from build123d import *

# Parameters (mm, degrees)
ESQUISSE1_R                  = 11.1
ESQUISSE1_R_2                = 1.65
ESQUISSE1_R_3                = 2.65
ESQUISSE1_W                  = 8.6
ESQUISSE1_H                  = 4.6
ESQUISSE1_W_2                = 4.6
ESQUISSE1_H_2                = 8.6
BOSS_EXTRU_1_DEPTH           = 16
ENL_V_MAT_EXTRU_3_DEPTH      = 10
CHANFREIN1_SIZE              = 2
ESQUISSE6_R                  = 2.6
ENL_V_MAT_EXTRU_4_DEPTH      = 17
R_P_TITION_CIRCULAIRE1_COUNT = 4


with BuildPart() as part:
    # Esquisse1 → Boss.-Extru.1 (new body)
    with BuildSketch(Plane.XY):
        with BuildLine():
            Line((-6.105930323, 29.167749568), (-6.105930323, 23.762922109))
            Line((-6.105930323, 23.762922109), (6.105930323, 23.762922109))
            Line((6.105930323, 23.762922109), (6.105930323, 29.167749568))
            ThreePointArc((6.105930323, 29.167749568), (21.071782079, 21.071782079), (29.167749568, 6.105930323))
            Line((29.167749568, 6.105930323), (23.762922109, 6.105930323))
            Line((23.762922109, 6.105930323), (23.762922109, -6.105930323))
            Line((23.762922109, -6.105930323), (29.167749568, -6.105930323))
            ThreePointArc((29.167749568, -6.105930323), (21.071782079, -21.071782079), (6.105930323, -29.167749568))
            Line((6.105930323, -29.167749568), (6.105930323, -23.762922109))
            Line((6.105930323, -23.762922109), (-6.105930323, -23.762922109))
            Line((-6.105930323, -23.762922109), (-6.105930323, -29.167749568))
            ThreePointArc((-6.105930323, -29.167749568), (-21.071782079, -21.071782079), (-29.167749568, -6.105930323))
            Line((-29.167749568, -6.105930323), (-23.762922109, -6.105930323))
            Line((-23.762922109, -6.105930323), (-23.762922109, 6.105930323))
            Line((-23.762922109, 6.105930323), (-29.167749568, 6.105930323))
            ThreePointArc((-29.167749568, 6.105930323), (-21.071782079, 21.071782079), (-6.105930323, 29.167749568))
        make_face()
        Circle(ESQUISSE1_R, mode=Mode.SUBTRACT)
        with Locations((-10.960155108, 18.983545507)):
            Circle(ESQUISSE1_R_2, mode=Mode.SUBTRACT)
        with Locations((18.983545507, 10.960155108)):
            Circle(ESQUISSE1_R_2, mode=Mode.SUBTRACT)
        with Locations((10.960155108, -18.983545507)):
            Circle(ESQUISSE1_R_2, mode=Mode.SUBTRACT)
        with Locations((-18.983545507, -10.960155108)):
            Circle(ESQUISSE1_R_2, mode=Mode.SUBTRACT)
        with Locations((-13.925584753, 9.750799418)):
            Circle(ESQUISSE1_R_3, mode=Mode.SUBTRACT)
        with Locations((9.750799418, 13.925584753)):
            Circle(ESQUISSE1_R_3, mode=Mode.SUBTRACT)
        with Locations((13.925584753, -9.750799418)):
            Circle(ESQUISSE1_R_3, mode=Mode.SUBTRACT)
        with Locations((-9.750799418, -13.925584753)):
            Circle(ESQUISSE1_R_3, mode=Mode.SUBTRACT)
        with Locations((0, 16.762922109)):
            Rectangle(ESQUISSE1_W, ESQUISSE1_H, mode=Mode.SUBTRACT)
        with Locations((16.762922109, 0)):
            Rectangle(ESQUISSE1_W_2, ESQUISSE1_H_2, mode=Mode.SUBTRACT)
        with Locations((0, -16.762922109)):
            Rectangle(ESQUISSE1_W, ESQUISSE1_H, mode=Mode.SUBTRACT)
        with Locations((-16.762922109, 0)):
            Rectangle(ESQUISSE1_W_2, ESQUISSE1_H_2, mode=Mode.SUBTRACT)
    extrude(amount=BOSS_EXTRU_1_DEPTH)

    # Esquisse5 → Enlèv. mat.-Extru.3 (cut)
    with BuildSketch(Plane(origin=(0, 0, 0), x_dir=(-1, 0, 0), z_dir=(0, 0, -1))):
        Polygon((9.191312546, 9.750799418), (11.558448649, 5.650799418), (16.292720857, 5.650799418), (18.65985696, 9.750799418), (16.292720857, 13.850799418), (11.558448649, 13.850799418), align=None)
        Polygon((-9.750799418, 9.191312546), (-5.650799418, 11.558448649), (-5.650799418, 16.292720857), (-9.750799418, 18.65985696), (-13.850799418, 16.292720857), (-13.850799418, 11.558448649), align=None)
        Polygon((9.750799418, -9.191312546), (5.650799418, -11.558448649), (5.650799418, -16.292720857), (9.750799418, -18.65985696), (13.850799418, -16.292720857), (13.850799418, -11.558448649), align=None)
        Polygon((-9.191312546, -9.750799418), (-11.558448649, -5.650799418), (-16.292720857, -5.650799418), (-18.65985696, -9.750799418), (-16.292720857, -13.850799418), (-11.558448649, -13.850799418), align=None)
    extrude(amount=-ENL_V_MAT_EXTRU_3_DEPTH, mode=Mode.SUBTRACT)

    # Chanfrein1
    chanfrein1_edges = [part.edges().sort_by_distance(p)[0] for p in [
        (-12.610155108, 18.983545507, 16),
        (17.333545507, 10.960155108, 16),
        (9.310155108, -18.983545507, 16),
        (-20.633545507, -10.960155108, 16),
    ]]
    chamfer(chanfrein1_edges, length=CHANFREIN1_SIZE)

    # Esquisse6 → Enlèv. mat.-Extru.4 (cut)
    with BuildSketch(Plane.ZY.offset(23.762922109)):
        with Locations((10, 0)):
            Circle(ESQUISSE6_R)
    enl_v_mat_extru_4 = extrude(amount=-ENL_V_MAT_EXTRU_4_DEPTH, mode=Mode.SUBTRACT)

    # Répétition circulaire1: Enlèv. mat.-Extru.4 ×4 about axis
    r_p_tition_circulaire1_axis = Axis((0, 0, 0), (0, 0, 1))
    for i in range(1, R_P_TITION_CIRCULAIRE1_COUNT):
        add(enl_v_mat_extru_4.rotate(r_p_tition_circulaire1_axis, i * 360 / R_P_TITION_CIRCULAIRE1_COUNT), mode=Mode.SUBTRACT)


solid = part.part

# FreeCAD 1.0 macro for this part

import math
import FreeCAD as App
import Part
import Sketcher
Q = App.Units.Quantity


def edges_at(feature, points):
    """Names of the edges that pass closest to the given points."""
    edges = feature.Shape.Edges
    near = lambda p: min(range(len(edges)), key=lambda i: edges[i].distToShape(Part.Vertex(*p))[0])
    return sorted({f"Edge{near(p) + 1}" for p in points})


def add_polygon(sketch, points):
    """Adds a closed chain of lines whose ends are joined by coincident constraints."""
    first, n = sketch.GeometryCount, len(points)
    for a, b in zip(points, points[1:] + points[:1]):
        sketch.addGeometry(Part.LineSegment(App.Vector(*a, 0), App.Vector(*b, 0)), False)
    for i in range(n):
        sketch.addConstraint(Sketcher.Constraint("Coincident", first + i, 2, first + (i + 1) % n, 1))

doc = App.newDocument("Part")
body = doc.addObject("PartDesign::Body", "Body")

# Sketch on XY plane
sketch1 = doc.addObject("Sketcher::SketchObject", "Sketch")
body.addObject(sketch1)
sketch1.AttachmentSupport = (doc.XY_Plane, [""])
sketch1.MapMode = "FlatFace"
sketch1.addGeometry(Part.LineSegment(App.Vector(-6.1, 23.8, 0), App.Vector(-6.1, 29.2, 0)), False)  # 0
sketch1.addGeometry(Part.ArcOfCircle(Part.Circle(App.Vector(0, 0, 0), App.Vector(0, 0, 1), 29.8), math.radians(102), math.radians(168)), False)  # 1
sketch1.addGeometry(Part.LineSegment(App.Vector(-29.2, 6.1, 0), App.Vector(-23.8, 6.1, 0)), False)  # 2
sketch1.addGeometry(Part.LineSegment(App.Vector(-23.8, 6.1, 0), App.Vector(-23.8, -6.1, 0)), False)  # 3
sketch1.addGeometry(Part.LineSegment(App.Vector(-23.8, -6.1, 0), App.Vector(-29.2, -6.1, 0)), False)  # 4
sketch1.addGeometry(Part.ArcOfCircle(Part.Circle(App.Vector(0, 0, 0), App.Vector(0, 0, 1), 29.8), math.radians(-168), math.radians(-102)), False)  # 5
sketch1.addGeometry(Part.LineSegment(App.Vector(-6.1, -29.2, 0), App.Vector(-6.1, -23.8, 0)), False)  # 6
sketch1.addGeometry(Part.LineSegment(App.Vector(-6.1, -23.8, 0), App.Vector(6.1, -23.8, 0)), False)  # 7
sketch1.addGeometry(Part.LineSegment(App.Vector(6.1, -23.8, 0), App.Vector(6.1, -29.2, 0)), False)  # 8
sketch1.addGeometry(Part.ArcOfCircle(Part.Circle(App.Vector(0, 0, 0), App.Vector(0, 0, 1), 29.8), math.radians(-78), math.radians(-12)), False)  # 9
sketch1.addGeometry(Part.LineSegment(App.Vector(29.2, -6.1, 0), App.Vector(23.8, -6.1, 0)), False)  # 10
sketch1.addGeometry(Part.LineSegment(App.Vector(23.8, -6.1, 0), App.Vector(23.8, 6.1, 0)), False)  # 11
sketch1.addGeometry(Part.LineSegment(App.Vector(23.8, 6.1, 0), App.Vector(29.2, 6.1, 0)), False)  # 12
sketch1.addGeometry(Part.ArcOfCircle(Part.Circle(App.Vector(0, 0, 0), App.Vector(0, 0, 1), 29.8), math.radians(12), math.radians(78)), False)  # 13
sketch1.addGeometry(Part.LineSegment(App.Vector(6.1, 29.2, 0), App.Vector(6.1, 23.8, 0)), False)  # 14
sketch1.addGeometry(Part.LineSegment(App.Vector(6.1, 23.8, 0), App.Vector(-6.1, 23.8, 0)), False)  # 15
sketch1.addGeometry(Part.Circle(App.Vector(11, -19, 0), App.Vector(0, 0, 1), 1.6), False)  # 16
sketch1.addGeometry(Part.Circle(App.Vector(13.9, -9.8, 0), App.Vector(0, 0, 1), 2.6), False)  # 17
add_polygon(sketch1, [(-4.3, -19.1), (-4.3, -14.5), (4.3, -14.5), (4.3, -19.1)])  # lines 18-21
sketch1.addGeometry(Part.Circle(App.Vector(-9.8, -13.9, 0), App.Vector(0, 0, 1), 2.6), False)  # 22
sketch1.addGeometry(Part.Circle(App.Vector(-19, -11, 0), App.Vector(0, 0, 1), 1.6), False)  # 23
add_polygon(sketch1, [(14.5, -4.3), (14.5, 4.3), (19.1, 4.3), (19.1, -4.3)])  # lines 24-27
sketch1.addGeometry(Part.Circle(App.Vector(19, 11, 0), App.Vector(0, 0, 1), 1.6), False)  # 28
sketch1.addGeometry(Part.Circle(App.Vector(9.8, 13.9, 0), App.Vector(0, 0, 1), 2.6), False)  # 29
sketch1.addGeometry(Part.Circle(App.Vector(0, 0, 0), App.Vector(0, 0, 1), 11.1), False)  # 30
add_polygon(sketch1, [(-19.1, -4.3), (-19.1, 4.3), (-14.5, 4.3), (-14.5, -4.3)])  # lines 31-34
sketch1.addGeometry(Part.Circle(App.Vector(-13.9, 9.8, 0), App.Vector(0, 0, 1), 2.6), False)  # 35
add_polygon(sketch1, [(-4.3, 14.5), (-4.3, 19.1), (4.3, 19.1), (4.3, 14.5)])  # lines 36-39
sketch1.addGeometry(Part.Circle(App.Vector(-11, 19, 0), App.Vector(0, 0, 1), 1.6), False)  # 40
sketch1.addConstraint(Sketcher.Constraint("Coincident", 0, 2, 1, 1))
sketch1.addConstraint(Sketcher.Constraint("Coincident", 1, 2, 2, 1))
sketch1.addConstraint(Sketcher.Constraint("Coincident", 2, 2, 3, 1))
sketch1.addConstraint(Sketcher.Constraint("Coincident", 3, 2, 4, 1))
sketch1.addConstraint(Sketcher.Constraint("Coincident", 4, 2, 5, 1))
sketch1.addConstraint(Sketcher.Constraint("Coincident", 5, 2, 6, 1))
sketch1.addConstraint(Sketcher.Constraint("Coincident", 6, 2, 7, 1))
sketch1.addConstraint(Sketcher.Constraint("Coincident", 7, 2, 8, 1))
sketch1.addConstraint(Sketcher.Constraint("Coincident", 8, 2, 9, 1))
sketch1.addConstraint(Sketcher.Constraint("Coincident", 9, 2, 10, 1))
sketch1.addConstraint(Sketcher.Constraint("Coincident", 10, 2, 11, 1))
sketch1.addConstraint(Sketcher.Constraint("Coincident", 11, 2, 12, 1))
sketch1.addConstraint(Sketcher.Constraint("Coincident", 12, 2, 13, 1))
sketch1.addConstraint(Sketcher.Constraint("Coincident", 13, 2, 14, 1))
sketch1.addConstraint(Sketcher.Constraint("Coincident", 14, 2, 15, 1))
sketch1.addConstraint(Sketcher.Constraint("Coincident", 15, 2, 0, 1))
sketch1.addConstraint(Sketcher.Constraint("Vertical", 0))
sketch1.addConstraint(Sketcher.Constraint("Horizontal", 2))
sketch1.addConstraint(Sketcher.Constraint("Vertical", 3))
sketch1.addConstraint(Sketcher.Constraint("Horizontal", 4))
sketch1.addConstraint(Sketcher.Constraint("Vertical", 6))
sketch1.addConstraint(Sketcher.Constraint("Horizontal", 7))
sketch1.addConstraint(Sketcher.Constraint("Vertical", 8))
sketch1.addConstraint(Sketcher.Constraint("Horizontal", 10))
sketch1.addConstraint(Sketcher.Constraint("Vertical", 11))
sketch1.addConstraint(Sketcher.Constraint("Horizontal", 12))
sketch1.addConstraint(Sketcher.Constraint("Vertical", 14))
sketch1.addConstraint(Sketcher.Constraint("Horizontal", 15))
sketch1.addConstraint(Sketcher.Constraint("Vertical", 18))
sketch1.addConstraint(Sketcher.Constraint("Horizontal", 19))
sketch1.addConstraint(Sketcher.Constraint("Vertical", 20))
sketch1.addConstraint(Sketcher.Constraint("Horizontal", 21))
sketch1.addConstraint(Sketcher.Constraint("Vertical", 24))
sketch1.addConstraint(Sketcher.Constraint("Horizontal", 25))
sketch1.addConstraint(Sketcher.Constraint("Vertical", 26))
sketch1.addConstraint(Sketcher.Constraint("Horizontal", 27))
sketch1.addConstraint(Sketcher.Constraint("Vertical", 31))
sketch1.addConstraint(Sketcher.Constraint("Horizontal", 32))
sketch1.addConstraint(Sketcher.Constraint("Vertical", 33))
sketch1.addConstraint(Sketcher.Constraint("Horizontal", 34))
sketch1.addConstraint(Sketcher.Constraint("Vertical", 36))
sketch1.addConstraint(Sketcher.Constraint("Horizontal", 37))
sketch1.addConstraint(Sketcher.Constraint("Vertical", 38))
sketch1.addConstraint(Sketcher.Constraint("Horizontal", 39))
sketch1.addConstraint(Sketcher.Constraint("Coincident", 1, 3, -1, 1))
sketch1.addConstraint(Sketcher.Constraint("Coincident", 5, 3, -1, 1))
sketch1.addConstraint(Sketcher.Constraint("Coincident", 9, 3, -1, 1))
sketch1.addConstraint(Sketcher.Constraint("Coincident", 13, 3, -1, 1))
sketch1.addConstraint(Sketcher.Constraint("Coincident", 30, 3, -1, 1))
sketch1.addConstraint(Sketcher.Constraint("Equal", 1, 5))
sketch1.addConstraint(Sketcher.Constraint("Equal", 5, 9))
sketch1.addConstraint(Sketcher.Constraint("Equal", 9, 13))
sketch1.addConstraint(Sketcher.Constraint("Equal", 17, 22))
sketch1.addConstraint(Sketcher.Constraint("Equal", 16, 23))
sketch1.addConstraint(Sketcher.Constraint("Equal", 23, 28))
sketch1.addConstraint(Sketcher.Constraint("Equal", 22, 29))
sketch1.addConstraint(Sketcher.Constraint("Equal", 29, 35))
sketch1.addConstraint(Sketcher.Constraint("Equal", 28, 40))
sketch1.addConstraint(Sketcher.Constraint("Symmetric", 23, 3, 28, 3, -1, 1))
sketch1.addConstraint(Sketcher.Constraint("Symmetric", 22, 3, 29, 3, -1, 1))
sketch1.addConstraint(Sketcher.Constraint("Symmetric", 17, 3, 35, 3, -1, 1))
sketch1.addConstraint(Sketcher.Constraint("Symmetric", 16, 3, 40, 3, -1, 1))
sketch1.addConstraint(Sketcher.Constraint("Symmetric", 2, 2, 10, 2, -1, 1))
sketch1.addConstraint(Sketcher.Constraint("Symmetric", 6, 2, 14, 2, -1, 1))
sketch1.addConstraint(Sketcher.Constraint("Symmetric", 26, 2, 31, 2, -1, 1))
sketch1.addConstraint(Sketcher.Constraint("Symmetric", 24, 2, 33, 2, -1, 1))
sketch1.addConstraint(Sketcher.Constraint("Symmetric", 20, 2, 36, 2, -1, 1))
sketch1.addConstraint(Sketcher.Constraint("Symmetric", 18, 2, 38, 2, -1, 1))
sketch1.addConstraint(Sketcher.Constraint("Horizontal", 5, 2, 8, 2))
sketch1.addConstraint(Sketcher.Constraint("Horizontal", 4, 2, 9, 2))
sketch1.addConstraint(Sketcher.Constraint("Horizontal", 2, 2, 11, 2))
sketch1.addConstraint(Sketcher.Constraint("Horizontal", 0, 2, 13, 2))
sketch1.addConstraint(Sketcher.Constraint("Horizontal", 25, 2, 31, 2))
sketch1.addConstraint(Sketcher.Constraint("Vertical", 21, 2, 36, 2))
sketch1.addConstraint(Sketcher.Constraint("Equal", 12, 0))
sketch1.addConstraint(Sketcher.Constraint("Equal", 15, 3))
sketch1.addConstraint(Sketcher.Constraint("Equal", 34, 18))
sketch1.addConstraint(Sketcher.Constraint("Equal", 39, 24))
sketch1.addConstraint(Sketcher.Constraint("Diameter", 16, Q("3.3 mm")))
sketch1.addConstraint(Sketcher.Constraint("Diameter", 17, Q("5.3 mm")))
sketch1.addConstraint(Sketcher.Constraint("Diameter", 30, Q("22.2 mm")))
sketch1.addConstraint(Sketcher.Constraint("Radius", 1, Q("29.8 mm")))
sketch1.addConstraint(Sketcher.Constraint("DistanceX", 19, 1, 19, 2, Q("8.6 mm")))
sketch1.addConstraint(Sketcher.Constraint("DistanceX", 25, 1, 25, 2, Q("4.6 mm")))
sketch1.addConstraint(Sketcher.Constraint("DistanceY", 6, 2, 18, 2, Q("9.3 mm")))
sketch1.addConstraint(Sketcher.Constraint("DistanceX", 24, 2, 11, 2, Q("9.3 mm")))
sketch1.addConstraint(Sketcher.Constraint("DistanceX", 7, 1, 7, 2, Q("12.211861 mm")))
sketch1.addConstraint(Sketcher.Constraint("DistanceY", 17, 3, -1, 1, Q("9.750799 mm")))
sketch1.addConstraint(Sketcher.Constraint("DistanceX", 22, 3, -1, 1, Q("9.750799 mm")))
sketch1.addConstraint(Sketcher.Constraint("DistanceX", 2, 1, 2, 2, Q("5.404827 mm")))
sketch1.addConstraint(Sketcher.Constraint("DistanceX", 16, 3, 17, 3, Q("2.96543 mm")))
sketch1.addConstraint(Sketcher.Constraint("DistanceY", 16, 3, 22, 3, Q("5.057961 mm")))
sketch1.addConstraint(Sketcher.Constraint("DistanceY", 22, 3, 23, 3, Q("2.96543 mm")))
sketch1.addConstraint(Sketcher.Constraint("DistanceX", 17, 3, 28, 3, Q("5.057961 mm")))
sketch1.addConstraint(Sketcher.Constraint("DistanceX", -1, 1, 16, 3, Q("10.960155 mm")))
sketch1.addConstraint(Sketcher.Constraint("DistanceY", 16, 3, -1, 1, Q("18.983546 mm")))
pad1 = doc.addObject("PartDesign::Pad", "Pad")
body.addObject(pad1)
pad1.Profile = sketch1
pad1.Length = 16

# Sketch on XY plane
sketch2 = doc.addObject("Sketcher::SketchObject", "Sketch001")
body.addObject(sketch2)
sketch2.AttachmentSupport = (doc.XY_Plane, [""])
sketch2.MapMode = "FlatFace"
add_polygon(sketch2, [(-9.2, 9.8), (-11.6, 5.7), (-16.3, 5.7), (-18.7, 9.8), (-16.3, 13.9), (-11.6, 13.9)])  # lines 0-5
add_polygon(sketch2, [(9.8, 9.2), (5.7, 11.6), (5.7, 16.3), (9.8, 18.7), (13.9, 16.3), (13.9, 11.6)])  # lines 6-11
add_polygon(sketch2, [(-9.8, -9.2), (-5.7, -11.6), (-5.7, -16.3), (-9.8, -18.7), (-13.9, -16.3), (-13.9, -11.6)])  # lines 12-17
add_polygon(sketch2, [(9.2, -9.8), (11.6, -5.7), (16.3, -5.7), (18.7, -9.8), (16.3, -13.9), (11.6, -13.9)])  # lines 18-23
sketch2.addConstraint(Sketcher.Constraint("Horizontal", 1))
sketch2.addConstraint(Sketcher.Constraint("Horizontal", 4))
sketch2.addConstraint(Sketcher.Constraint("Vertical", 7))
sketch2.addConstraint(Sketcher.Constraint("Vertical", 10))
sketch2.addConstraint(Sketcher.Constraint("Vertical", 13))
sketch2.addConstraint(Sketcher.Constraint("Vertical", 16))
sketch2.addConstraint(Sketcher.Constraint("Horizontal", 19))
sketch2.addConstraint(Sketcher.Constraint("Horizontal", 22))
sketch2.addConstraint(Sketcher.Constraint("Symmetric", 6, 2, 12, 2, -1, 1))
sketch2.addConstraint(Sketcher.Constraint("Symmetric", 8, 2, 14, 2, -1, 1))
sketch2.addConstraint(Sketcher.Constraint("Symmetric", 9, 2, 15, 2, -1, 1))
sketch2.addConstraint(Sketcher.Constraint("Symmetric", 11, 2, 17, 2, -1, 1))
sketch2.addConstraint(Sketcher.Constraint("Symmetric", 0, 2, 18, 2, -1, 1))
sketch2.addConstraint(Sketcher.Constraint("Symmetric", 2, 2, 20, 2, -1, 1))
sketch2.addConstraint(Sketcher.Constraint("Symmetric", 3, 2, 21, 2, -1, 1))
sketch2.addConstraint(Sketcher.Constraint("Symmetric", 5, 2, 23, 2, -1, 1))
sketch2.addConstraint(Sketcher.Constraint("Parallel", 0, 3))
sketch2.addConstraint(Sketcher.Constraint("Parallel", 2, 5))
sketch2.addConstraint(Sketcher.Constraint("Perpendicular", 3, 6))
sketch2.addConstraint(Sketcher.Constraint("Perpendicular", 5, 8))
sketch2.addConstraint(Sketcher.Constraint("Parallel", 6, 9))
sketch2.addConstraint(Sketcher.Constraint("Parallel", 8, 11))
sketch2.addConstraint(Sketcher.Constraint("Parallel", 11, 14))
sketch2.addConstraint(Sketcher.Constraint("Parallel", 14, 17))
sketch2.addConstraint(Sketcher.Constraint("Perpendicular", 17, 20))
sketch2.addConstraint(Sketcher.Constraint("Parallel", 20, 23))
sketch2.addConstraint(Sketcher.Constraint("Horizontal", 2, 2, 5, 2))
sketch2.addConstraint(Sketcher.Constraint("Horizontal", 7, 2, 9, 2))
sketch2.addConstraint(Sketcher.Constraint("Horizontal", 6, 2, 10, 2))
sketch2.addConstraint(Sketcher.Constraint("Vertical", 1, 2, 3, 2))
sketch2.addConstraint(Sketcher.Constraint("Vertical", 0, 2, 4, 2))
sketch2.addConstraint(Sketcher.Constraint("Equal", 22, 7))
sketch2.addConstraint(Sketcher.Constraint("Equal", 5, 6))
sketch2.addConstraint(Sketcher.Constraint("Angle", 0, Q("-120 deg")))
sketch2.addConstraint(Sketcher.Constraint("DistanceY", 1, 2, 2, 2, Q("4.1 mm")))
sketch2.addConstraint(Sketcher.Constraint("DistanceY", -1, 1, 0, 2, Q("5.650799 mm")))
sketch2.addConstraint(Sketcher.Constraint("DistanceX", -1, 1, 6, 2, Q("5.650799 mm")))
sketch2.addConstraint(Sketcher.Constraint("DistanceX", 1, 2, 1, 1, Q("4.734272 mm")))
sketch2.addConstraint(Sketcher.Constraint("DistanceX", 0, 2, -1, 1, Q("11.558449 mm")))
sketch2.addConstraint(Sketcher.Constraint("DistanceY", -1, 1, 6, 2, Q("11.558449 mm")))
pocket1 = doc.addObject("PartDesign::Pocket", "Pocket")
body.addObject(pocket1)
pocket1.Profile = sketch2
pocket1.Length = 10
pocket1.Reversed = True
doc.recompute()

chamfer = doc.addObject("PartDesign::Chamfer", "Chamfer")
body.addObject(chamfer)
chamfer.Base = (pocket1, edges_at(pocket1, [
    (-12.61, 18.984, 16),
    (17.334, 10.96, 16),
    (9.31, -18.984, 16),
    (-20.634, -10.96, 16),
]))
chamfer.Size = 2

# Sketch on YZ plane
sketch3 = doc.addObject("Sketcher::SketchObject", "Sketch002")
body.addObject(sketch3)
sketch3.AttachmentSupport = (doc.YZ_Plane, [""])
sketch3.MapMode = "FlatFace"
sketch3.AttachmentOffset = App.Placement(App.Vector(0, 0, -23.762922), App.Rotation())
sketch3.addGeometry(Part.Circle(App.Vector(0, 10, 0), App.Vector(0, 0, 1), 2.6), False)
sketch3.addConstraint(Sketcher.Constraint("PointOnObject", 0, 3, -2))
sketch3.addConstraint(Sketcher.Constraint("Diameter", 0, Q("5.2 mm")))
sketch3.addConstraint(Sketcher.Constraint("DistanceY", -1, 1, 0, 3, Q("10 mm")))
pocket2 = doc.addObject("PartDesign::Pocket", "Pocket001")
body.addObject(pocket2)
pocket2.Profile = sketch3
pocket2.Length = 17
pocket2.Reversed = True
doc.recompute()

polarpattern = doc.addObject("PartDesign::PolarPattern", "PolarPattern")
body.addObject(polarpattern)
polarpattern.Originals = [pocket2]
polarpattern.Axis = (doc.Z_Axis, [""])
polarpattern.Angle = 360
polarpattern.Occurrences = 4
body.Tip = polarpattern

doc.recompute()
